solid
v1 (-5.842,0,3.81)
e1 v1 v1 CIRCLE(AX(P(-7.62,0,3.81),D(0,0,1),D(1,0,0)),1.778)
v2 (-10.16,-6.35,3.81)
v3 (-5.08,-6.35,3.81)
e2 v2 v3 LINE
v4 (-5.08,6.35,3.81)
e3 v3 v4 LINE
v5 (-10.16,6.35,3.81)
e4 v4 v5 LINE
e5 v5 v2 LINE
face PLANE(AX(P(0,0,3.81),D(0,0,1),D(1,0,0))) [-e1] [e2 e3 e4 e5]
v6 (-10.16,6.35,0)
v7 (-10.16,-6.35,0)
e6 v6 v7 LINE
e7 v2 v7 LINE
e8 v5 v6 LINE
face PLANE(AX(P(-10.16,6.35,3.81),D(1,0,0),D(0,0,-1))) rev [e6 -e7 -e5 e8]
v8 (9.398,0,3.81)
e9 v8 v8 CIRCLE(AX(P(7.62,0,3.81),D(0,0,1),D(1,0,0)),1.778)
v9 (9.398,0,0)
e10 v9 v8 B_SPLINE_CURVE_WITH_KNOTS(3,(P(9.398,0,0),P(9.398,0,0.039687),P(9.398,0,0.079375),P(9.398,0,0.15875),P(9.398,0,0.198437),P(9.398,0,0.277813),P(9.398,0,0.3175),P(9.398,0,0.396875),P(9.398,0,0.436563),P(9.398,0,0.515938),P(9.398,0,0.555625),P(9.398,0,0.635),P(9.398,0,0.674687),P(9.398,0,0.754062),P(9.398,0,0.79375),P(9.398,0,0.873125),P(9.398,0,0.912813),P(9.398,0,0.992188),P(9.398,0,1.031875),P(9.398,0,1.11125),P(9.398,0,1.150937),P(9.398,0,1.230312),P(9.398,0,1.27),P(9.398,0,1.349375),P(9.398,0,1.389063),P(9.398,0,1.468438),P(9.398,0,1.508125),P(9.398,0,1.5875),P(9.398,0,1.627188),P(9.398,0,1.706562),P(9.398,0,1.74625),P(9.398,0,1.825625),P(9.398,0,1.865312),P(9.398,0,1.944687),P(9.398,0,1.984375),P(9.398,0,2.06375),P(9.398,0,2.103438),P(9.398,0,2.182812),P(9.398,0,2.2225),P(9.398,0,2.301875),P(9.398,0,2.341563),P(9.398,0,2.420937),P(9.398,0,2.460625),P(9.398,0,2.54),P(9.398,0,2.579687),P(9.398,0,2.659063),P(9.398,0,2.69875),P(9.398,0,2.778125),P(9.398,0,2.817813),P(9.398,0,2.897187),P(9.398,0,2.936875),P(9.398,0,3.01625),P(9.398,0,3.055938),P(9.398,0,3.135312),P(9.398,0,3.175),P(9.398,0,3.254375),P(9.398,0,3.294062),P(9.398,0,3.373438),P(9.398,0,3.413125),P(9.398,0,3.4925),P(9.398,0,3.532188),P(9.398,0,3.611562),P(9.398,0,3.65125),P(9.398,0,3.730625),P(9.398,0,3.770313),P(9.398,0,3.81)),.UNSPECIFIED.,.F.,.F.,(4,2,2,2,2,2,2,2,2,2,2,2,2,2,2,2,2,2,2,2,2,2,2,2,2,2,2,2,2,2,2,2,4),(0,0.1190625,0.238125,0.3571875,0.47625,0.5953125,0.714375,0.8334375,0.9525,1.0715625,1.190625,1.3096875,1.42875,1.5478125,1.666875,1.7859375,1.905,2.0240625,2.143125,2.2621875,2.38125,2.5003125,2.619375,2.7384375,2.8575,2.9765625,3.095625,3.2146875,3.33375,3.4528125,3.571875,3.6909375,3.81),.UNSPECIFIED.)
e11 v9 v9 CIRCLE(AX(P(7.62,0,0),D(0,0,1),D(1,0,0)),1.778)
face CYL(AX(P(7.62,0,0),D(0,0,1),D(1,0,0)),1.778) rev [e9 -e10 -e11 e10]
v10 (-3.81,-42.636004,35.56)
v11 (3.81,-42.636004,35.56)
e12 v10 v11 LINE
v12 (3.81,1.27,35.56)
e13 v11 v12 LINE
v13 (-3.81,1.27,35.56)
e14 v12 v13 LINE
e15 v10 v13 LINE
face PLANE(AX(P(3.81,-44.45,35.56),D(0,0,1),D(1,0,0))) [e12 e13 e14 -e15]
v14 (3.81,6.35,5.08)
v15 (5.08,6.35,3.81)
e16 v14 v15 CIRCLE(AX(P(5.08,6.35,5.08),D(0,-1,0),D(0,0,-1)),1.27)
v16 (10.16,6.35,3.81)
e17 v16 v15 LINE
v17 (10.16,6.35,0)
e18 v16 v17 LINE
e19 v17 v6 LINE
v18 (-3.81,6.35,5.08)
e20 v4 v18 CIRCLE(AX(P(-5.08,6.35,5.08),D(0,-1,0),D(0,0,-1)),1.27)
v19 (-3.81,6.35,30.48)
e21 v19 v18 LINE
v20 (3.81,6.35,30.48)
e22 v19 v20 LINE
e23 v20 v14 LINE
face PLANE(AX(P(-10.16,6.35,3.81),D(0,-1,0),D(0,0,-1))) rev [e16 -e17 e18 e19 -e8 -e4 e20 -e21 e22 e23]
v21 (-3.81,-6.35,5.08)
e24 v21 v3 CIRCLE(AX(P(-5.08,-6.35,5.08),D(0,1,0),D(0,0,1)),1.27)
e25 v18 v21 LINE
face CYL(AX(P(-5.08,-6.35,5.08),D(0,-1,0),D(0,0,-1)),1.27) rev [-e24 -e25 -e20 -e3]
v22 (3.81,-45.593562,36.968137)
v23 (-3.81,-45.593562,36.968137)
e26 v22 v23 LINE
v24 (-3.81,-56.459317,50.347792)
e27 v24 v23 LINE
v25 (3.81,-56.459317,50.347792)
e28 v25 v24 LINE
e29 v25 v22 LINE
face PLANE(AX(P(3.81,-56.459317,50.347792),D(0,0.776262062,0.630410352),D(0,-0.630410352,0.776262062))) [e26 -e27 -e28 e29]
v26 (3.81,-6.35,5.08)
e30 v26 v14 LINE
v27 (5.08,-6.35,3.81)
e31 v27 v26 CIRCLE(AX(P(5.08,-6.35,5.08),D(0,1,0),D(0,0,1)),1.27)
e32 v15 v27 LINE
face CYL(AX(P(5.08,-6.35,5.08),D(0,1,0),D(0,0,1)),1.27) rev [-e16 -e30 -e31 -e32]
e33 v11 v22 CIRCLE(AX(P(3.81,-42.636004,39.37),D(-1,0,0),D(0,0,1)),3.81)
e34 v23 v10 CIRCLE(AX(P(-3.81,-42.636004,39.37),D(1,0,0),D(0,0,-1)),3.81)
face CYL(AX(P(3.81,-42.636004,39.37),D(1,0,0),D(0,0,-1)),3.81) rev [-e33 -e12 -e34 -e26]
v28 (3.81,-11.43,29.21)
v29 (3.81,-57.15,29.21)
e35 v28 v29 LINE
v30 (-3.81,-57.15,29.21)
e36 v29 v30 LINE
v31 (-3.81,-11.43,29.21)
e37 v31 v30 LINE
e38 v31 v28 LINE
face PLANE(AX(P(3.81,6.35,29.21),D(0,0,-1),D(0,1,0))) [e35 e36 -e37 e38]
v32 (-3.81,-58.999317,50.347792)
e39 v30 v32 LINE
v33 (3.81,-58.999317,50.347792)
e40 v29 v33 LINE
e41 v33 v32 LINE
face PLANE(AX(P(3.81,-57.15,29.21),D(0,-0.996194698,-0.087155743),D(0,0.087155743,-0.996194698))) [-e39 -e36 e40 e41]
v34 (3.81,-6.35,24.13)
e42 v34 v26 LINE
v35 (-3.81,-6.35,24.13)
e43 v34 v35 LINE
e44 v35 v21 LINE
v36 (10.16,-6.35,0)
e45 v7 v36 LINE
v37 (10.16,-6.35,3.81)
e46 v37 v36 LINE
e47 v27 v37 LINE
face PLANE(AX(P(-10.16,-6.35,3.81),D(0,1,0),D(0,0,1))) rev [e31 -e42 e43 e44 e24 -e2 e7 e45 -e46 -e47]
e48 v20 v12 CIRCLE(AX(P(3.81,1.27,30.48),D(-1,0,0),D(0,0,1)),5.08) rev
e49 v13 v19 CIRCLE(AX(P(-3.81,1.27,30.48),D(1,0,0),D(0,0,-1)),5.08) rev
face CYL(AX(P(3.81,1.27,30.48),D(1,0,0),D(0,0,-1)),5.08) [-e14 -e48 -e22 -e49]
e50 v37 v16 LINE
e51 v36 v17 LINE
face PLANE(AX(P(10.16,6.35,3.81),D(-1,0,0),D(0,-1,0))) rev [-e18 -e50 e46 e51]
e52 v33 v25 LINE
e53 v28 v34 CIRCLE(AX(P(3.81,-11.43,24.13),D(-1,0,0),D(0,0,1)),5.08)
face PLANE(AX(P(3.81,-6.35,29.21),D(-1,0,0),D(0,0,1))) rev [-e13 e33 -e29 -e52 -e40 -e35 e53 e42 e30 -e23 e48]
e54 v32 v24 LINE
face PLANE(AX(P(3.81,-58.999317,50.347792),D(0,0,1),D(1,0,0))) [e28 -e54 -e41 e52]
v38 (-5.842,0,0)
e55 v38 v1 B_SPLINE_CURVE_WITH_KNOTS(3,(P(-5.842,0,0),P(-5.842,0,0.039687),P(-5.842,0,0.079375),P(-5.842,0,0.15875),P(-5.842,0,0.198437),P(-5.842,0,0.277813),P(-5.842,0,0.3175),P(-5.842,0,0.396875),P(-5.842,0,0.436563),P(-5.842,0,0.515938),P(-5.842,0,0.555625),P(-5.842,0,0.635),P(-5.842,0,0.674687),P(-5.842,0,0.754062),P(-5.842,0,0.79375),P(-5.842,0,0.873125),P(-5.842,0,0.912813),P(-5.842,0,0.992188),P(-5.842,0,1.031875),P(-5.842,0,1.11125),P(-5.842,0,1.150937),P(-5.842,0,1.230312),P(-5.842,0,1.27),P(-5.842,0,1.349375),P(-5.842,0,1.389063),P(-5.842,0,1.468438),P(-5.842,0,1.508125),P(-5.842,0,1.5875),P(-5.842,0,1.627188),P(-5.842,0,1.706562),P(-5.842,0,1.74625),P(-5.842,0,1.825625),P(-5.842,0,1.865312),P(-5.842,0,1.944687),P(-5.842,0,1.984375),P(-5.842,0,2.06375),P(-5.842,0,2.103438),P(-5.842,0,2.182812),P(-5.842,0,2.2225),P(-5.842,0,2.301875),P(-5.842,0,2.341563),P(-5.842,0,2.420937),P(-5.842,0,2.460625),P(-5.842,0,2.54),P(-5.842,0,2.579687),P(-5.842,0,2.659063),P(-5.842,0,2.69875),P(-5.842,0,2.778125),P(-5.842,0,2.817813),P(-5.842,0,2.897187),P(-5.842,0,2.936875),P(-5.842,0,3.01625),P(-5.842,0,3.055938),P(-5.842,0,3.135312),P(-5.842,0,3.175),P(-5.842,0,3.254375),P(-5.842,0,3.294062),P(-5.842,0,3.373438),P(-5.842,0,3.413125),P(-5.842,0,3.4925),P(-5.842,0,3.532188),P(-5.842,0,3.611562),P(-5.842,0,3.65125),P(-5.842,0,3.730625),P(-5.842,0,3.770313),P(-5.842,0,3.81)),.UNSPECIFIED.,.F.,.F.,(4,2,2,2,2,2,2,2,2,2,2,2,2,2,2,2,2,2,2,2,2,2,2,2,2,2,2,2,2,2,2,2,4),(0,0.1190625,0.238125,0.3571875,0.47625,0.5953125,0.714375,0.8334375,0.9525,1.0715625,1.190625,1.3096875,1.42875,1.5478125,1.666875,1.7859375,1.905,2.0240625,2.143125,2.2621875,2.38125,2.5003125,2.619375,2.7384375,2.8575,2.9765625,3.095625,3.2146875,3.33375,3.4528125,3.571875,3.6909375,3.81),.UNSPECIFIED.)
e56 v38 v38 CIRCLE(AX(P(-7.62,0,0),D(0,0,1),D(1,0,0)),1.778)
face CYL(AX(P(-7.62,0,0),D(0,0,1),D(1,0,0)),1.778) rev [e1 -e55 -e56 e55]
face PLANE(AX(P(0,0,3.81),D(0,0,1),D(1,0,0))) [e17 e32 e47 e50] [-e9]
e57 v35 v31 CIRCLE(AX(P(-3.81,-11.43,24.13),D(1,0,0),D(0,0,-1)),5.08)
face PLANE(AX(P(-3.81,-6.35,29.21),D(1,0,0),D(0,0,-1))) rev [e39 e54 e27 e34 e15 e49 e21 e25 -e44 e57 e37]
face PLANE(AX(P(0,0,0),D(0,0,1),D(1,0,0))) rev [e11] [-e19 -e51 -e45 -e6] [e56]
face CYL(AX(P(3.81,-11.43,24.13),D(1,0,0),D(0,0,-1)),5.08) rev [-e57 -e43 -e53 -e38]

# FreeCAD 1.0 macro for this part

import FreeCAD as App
import Part
import Sketcher

V = App.Vector
Q = App.Units.Quantity


def edges_at(feature, points):
    """Names of the edges that pass closest to the given points."""
    edges = feature.Shape.Edges
    near = lambda p: min(range(len(edges)), key=lambda i: edges[i].distToShape(Part.Vertex(*p))[0])
    return sorted({f"Edge{near(p) + 1}" for p in points})

doc = App.newDocument("Part")
params = doc.addObject("Spreadsheet::Sheet", "Params")
for row, (alias, value) in enumerate([
    ("sketch1_width", "0.8 in"),
    ("sketch1_height", "0.5 in"),
    ("pad1_length", "0.15 in"),
    ("sketch2_diameter", "0.14 in"),
    ("pocket1_length", "0.15 in"),
    ("sketch3_width", "0.3 in"),
    ("sketch3_height", "0.5 in"),
    ("pad2_length", "1 in"),
    ("fillet_radius", "0.05 in"),
    ("fillet2_radius", "0.05 in"),
    ("sketch4_width", "2 in"),
    ("sketch4_width2", "2.5 in"),
    ("sketch4_width3", "0.1 in"),
    ("sketch4_height", "0.25 in"),
    ("sketch4_length", "0.75 in"),
    ("pad3_length", "0.3 in"),
    ("fillet3_radius", "0.2 in"),
    ("fillet4_radius", "0.2 in"),
    ("fillet5_radius", "0.15 in"),
], start=1):
    params.set(f"A{row}", alias)
    params.set(f"B{row}", "=" + value)
    params.setAlias(f"B{row}", alias)

body = doc.addObject("PartDesign::Body", "Body")

# Sketch on XY plane
sketch1 = body.newObject("Sketcher::SketchObject", "Sketch")
sketch1.AttachmentSupport = (doc.getObject("XY_Plane"), [""])
sketch1.MapMode = "FlatFace"
sketch1.addGeometry([
    Part.LineSegment(V(-10, 6, 0), V(-10, -6, 0)),
    Part.LineSegment(V(-10, -6, 0), V(10, -6, 0)),
    Part.LineSegment(V(10, -6, 0), V(10, 6, 0)),
    Part.LineSegment(V(10, 6, 0), V(-10, 6, 0)),
], False)
sketch1.addConstraint([
    Sketcher.Constraint("Coincident", 0, 2, 1, 1),
    Sketcher.Constraint("Coincident", 1, 2, 2, 1),
    Sketcher.Constraint("Coincident", 2, 2, 3, 1),
    Sketcher.Constraint("Coincident", 3, 2, 0, 1),
    Sketcher.Constraint("Vertical", 0),
    Sketcher.Constraint("Horizontal", 1),
    Sketcher.Constraint("Vertical", 2),
    Sketcher.Constraint("Horizontal", 3),
    Sketcher.Constraint("Symmetric", 0, 2, 2, 2, -1, 1),
    Sketcher.Constraint("DistanceX", 1, 1, 1, 2, Q("0.8 in")),
    Sketcher.Constraint("DistanceY", 0, 2, 0, 1, Q("0.5 in")),
])
sketch1.setExpression("Constraints[9]", "Params.sketch1_width")
sketch1.setExpression("Constraints[10]", "Params.sketch1_height")
pad1 = body.newObject("PartDesign::Pad", "Pad")
pad1.Profile = sketch1
pad1.setExpression("Length", "Params.pad1_length")

# Sketch on XY plane
sketch2 = body.newObject("Sketcher::SketchObject", "Sketch001")
sketch2.AttachmentSupport = (doc.getObject("XY_Plane"), [""])
sketch2.MapMode = "FlatFace"
sketch2.AttachmentOffset = App.Placement(V(0, 0, 0.15 * 25.4), App.Rotation())
sketch2.addGeometry([
    Part.Circle(V(-7.6, 0, 0), V(0, 0, 1), 1.8),
    Part.Circle(V(7.6, 0, 0), V(0, 0, 1), 1.8),
], False)
sketch2.addConstraint([
    Sketcher.Constraint("Equal", 0, 1),
    Sketcher.Constraint("Symmetric", 0, 3, 1, 3, -1, 1),
    Sketcher.Constraint("PointOnObject", 0, 3, -1),
    Sketcher.Constraint("Diameter", 0, Q("0.14 in")),
    Sketcher.Constraint("DistanceX", 0, 3, -1, 1, Q("0.3 in")),
])
sketch2.setExpression("Constraints[3]", "Params.sketch2_diameter")
pocket1 = body.newObject("PartDesign::Pocket", "Pocket")
pocket1.Profile = sketch2
pocket1.setExpression("Length", "Params.pocket1_length")

# Sketch on XY plane
sketch3 = body.newObject("Sketcher::SketchObject", "Sketch002")
sketch3.AttachmentSupport = (doc.getObject("XY_Plane"), [""])
sketch3.MapMode = "FlatFace"
sketch3.AttachmentOffset = App.Placement(V(0, 0, 0.15 * 25.4), App.Rotation())
sketch3.addGeometry([
    Part.LineSegment(V(-4, 6, 0), V(-4, -6, 0)),
    Part.LineSegment(V(-4, -6, 0), V(4, -6, 0)),
    Part.LineSegment(V(4, -6, 0), V(4, 6, 0)),
    Part.LineSegment(V(4, 6, 0), V(-4, 6, 0)),
], False)
sketch3.addConstraint([
    Sketcher.Constraint("Coincident", 0, 2, 1, 1),
    Sketcher.Constraint("Coincident", 1, 2, 2, 1),
    Sketcher.Constraint("Coincident", 2, 2, 3, 1),
    Sketcher.Constraint("Coincident", 3, 2, 0, 1),
    Sketcher.Constraint("Vertical", 0),
    Sketcher.Constraint("Horizontal", 1),
    Sketcher.Constraint("Vertical", 2),
    Sketcher.Constraint("Horizontal", 3),
    Sketcher.Constraint("Symmetric", 0, 2, 2, 2, -1, 1),
    Sketcher.Constraint("DistanceX", 1, 1, 1, 2, Q("0.3 in")),
    Sketcher.Constraint("DistanceY", 0, 2, 0, 1, Q("0.5 in")),
])
sketch3.setExpression("Constraints[9]", "Params.sketch3_width")
sketch3.setExpression("Constraints[10]", "Params.sketch3_height")
pad2 = body.newObject("PartDesign::Pad", "Pad001")
pad2.Profile = sketch3
pad2.setExpression("Length", "Params.pad2_length")
doc.recompute()

fillet = body.newObject("PartDesign::Fillet", "Fillet")
fillet.Base = (pad2, edges_at(pad2, [(-3.81, 0, 3.81)]))
fillet.setExpression("Radius", "Params.fillet_radius")
doc.recompute()

fillet2 = body.newObject("PartDesign::Fillet", "Fillet001")
fillet2.Base = (fillet, edges_at(fillet, [(3.81, 0, 3.81)]))
fillet2.setExpression("Radius", "Params.fillet2_radius")

# Sketch on YZ plane
sketch4 = body.newObject("Sketcher::SketchObject", "Sketch003")
sketch4.AttachmentSupport = (doc.getObject("YZ_Plane"), [""])
sketch4.MapMode = "FlatFace"
sketch4.AttachmentOffset = App.Placement(V(0, 0, -0.15 * 25.4), App.Rotation())
sketch4.addGeometry([
    Part.LineSegment(V(6.3, 29.2, 0), V(-57.1, 29.2, 0)),  # 0
    Part.LineSegment(V(-57.1, 29.2, 0), V(-59, 50.3, 0)),  # 1
    Part.LineSegment(V(-59, 50.3, 0), V(-56.5, 50.3, 0)),  # 2
    Part.LineSegment(V(-56.5, 50.3, 0), V(-44.5, 35.6, 0)),  # 3
    Part.LineSegment(V(-44.5, 35.6, 0), V(6.3, 35.6, 0)),  # 4
    Part.LineSegment(V(6.3, 35.6, 0), V(6.3, 29.2, 0)),  # 5
], False)
sketch4.addConstraint([
    Sketcher.Constraint("Coincident", 0, 2, 1, 1),
    Sketcher.Constraint("Coincident", 1, 2, 2, 1),
    Sketcher.Constraint("Coincident", 2, 2, 3, 1),
    Sketcher.Constraint("Coincident", 3, 2, 4, 1),
    Sketcher.Constraint("Coincident", 4, 2, 5, 1),
    Sketcher.Constraint("Coincident", 5, 2, 0, 1),
    Sketcher.Constraint("Horizontal", 0),
    Sketcher.Constraint("Horizontal", 2),
    Sketcher.Constraint("Horizontal", 4),
    Sketcher.Constraint("Vertical", 5),
    Sketcher.Constraint("DistanceX", 4, 1, 4, 2, Q("2 in")),
    Sketcher.Constraint("DistanceX", 0, 2, 0, 1, Q("2.5 in")),
    Sketcher.Constraint("DistanceX", 2, 1, 2, 2, Q("0.1 in")),
    Sketcher.Constraint("Angle", 1, Q("95 deg")),
    Sketcher.Constraint("DistanceY", 5, 2, 5, 1, Q("0.25 in")),
    Sketcher.Constraint("DistanceY", -1, 1, 3, 2, Q("1.4 in")),
    Sketcher.Constraint("Distance", 3, Q("0.75 in")),
    Sketcher.Constraint("DistanceX", 0, 2, -1, 1, Q("2.25 in")),
])
sketch4.setExpression("Constraints[10]", "Params.sketch4_width")
sketch4.setExpression("Constraints[11]", "Params.sketch4_width2")
sketch4.setExpression("Constraints[12]", "Params.sketch4_width3")
sketch4.setExpression("Constraints[14]", "Params.sketch4_height")
sketch4.setExpression("Constraints[16]", "Params.sketch4_length")
pad3 = body.newObject("PartDesign::Pad", "Pad002")
pad3.Profile = sketch4
pad3.setExpression("Length", "Params.pad3_length")
doc.recompute()

fillet3 = body.newObject("PartDesign::Fillet", "Fillet002")
fillet3.Base = (pad3, edges_at(pad3, [(0, -6.35, 29.21)]))
fillet3.setExpression("Radius", "Params.fillet3_radius")
doc.recompute()

fillet4 = body.newObject("PartDesign::Fillet", "Fillet003")
fillet4.Base = (fillet3, edges_at(fillet3, [(0, 6.35, 35.56)]))
fillet4.setExpression("Radius", "Params.fillet4_radius")
doc.recompute()

fillet5 = body.newObject("PartDesign::Fillet", "Fillet004")
fillet5.Base = (fillet4, edges_at(fillet4, [(0, -44.45, 35.56)]))
fillet5.setExpression("Radius", "Params.fillet5_radius")

doc.recompute()
